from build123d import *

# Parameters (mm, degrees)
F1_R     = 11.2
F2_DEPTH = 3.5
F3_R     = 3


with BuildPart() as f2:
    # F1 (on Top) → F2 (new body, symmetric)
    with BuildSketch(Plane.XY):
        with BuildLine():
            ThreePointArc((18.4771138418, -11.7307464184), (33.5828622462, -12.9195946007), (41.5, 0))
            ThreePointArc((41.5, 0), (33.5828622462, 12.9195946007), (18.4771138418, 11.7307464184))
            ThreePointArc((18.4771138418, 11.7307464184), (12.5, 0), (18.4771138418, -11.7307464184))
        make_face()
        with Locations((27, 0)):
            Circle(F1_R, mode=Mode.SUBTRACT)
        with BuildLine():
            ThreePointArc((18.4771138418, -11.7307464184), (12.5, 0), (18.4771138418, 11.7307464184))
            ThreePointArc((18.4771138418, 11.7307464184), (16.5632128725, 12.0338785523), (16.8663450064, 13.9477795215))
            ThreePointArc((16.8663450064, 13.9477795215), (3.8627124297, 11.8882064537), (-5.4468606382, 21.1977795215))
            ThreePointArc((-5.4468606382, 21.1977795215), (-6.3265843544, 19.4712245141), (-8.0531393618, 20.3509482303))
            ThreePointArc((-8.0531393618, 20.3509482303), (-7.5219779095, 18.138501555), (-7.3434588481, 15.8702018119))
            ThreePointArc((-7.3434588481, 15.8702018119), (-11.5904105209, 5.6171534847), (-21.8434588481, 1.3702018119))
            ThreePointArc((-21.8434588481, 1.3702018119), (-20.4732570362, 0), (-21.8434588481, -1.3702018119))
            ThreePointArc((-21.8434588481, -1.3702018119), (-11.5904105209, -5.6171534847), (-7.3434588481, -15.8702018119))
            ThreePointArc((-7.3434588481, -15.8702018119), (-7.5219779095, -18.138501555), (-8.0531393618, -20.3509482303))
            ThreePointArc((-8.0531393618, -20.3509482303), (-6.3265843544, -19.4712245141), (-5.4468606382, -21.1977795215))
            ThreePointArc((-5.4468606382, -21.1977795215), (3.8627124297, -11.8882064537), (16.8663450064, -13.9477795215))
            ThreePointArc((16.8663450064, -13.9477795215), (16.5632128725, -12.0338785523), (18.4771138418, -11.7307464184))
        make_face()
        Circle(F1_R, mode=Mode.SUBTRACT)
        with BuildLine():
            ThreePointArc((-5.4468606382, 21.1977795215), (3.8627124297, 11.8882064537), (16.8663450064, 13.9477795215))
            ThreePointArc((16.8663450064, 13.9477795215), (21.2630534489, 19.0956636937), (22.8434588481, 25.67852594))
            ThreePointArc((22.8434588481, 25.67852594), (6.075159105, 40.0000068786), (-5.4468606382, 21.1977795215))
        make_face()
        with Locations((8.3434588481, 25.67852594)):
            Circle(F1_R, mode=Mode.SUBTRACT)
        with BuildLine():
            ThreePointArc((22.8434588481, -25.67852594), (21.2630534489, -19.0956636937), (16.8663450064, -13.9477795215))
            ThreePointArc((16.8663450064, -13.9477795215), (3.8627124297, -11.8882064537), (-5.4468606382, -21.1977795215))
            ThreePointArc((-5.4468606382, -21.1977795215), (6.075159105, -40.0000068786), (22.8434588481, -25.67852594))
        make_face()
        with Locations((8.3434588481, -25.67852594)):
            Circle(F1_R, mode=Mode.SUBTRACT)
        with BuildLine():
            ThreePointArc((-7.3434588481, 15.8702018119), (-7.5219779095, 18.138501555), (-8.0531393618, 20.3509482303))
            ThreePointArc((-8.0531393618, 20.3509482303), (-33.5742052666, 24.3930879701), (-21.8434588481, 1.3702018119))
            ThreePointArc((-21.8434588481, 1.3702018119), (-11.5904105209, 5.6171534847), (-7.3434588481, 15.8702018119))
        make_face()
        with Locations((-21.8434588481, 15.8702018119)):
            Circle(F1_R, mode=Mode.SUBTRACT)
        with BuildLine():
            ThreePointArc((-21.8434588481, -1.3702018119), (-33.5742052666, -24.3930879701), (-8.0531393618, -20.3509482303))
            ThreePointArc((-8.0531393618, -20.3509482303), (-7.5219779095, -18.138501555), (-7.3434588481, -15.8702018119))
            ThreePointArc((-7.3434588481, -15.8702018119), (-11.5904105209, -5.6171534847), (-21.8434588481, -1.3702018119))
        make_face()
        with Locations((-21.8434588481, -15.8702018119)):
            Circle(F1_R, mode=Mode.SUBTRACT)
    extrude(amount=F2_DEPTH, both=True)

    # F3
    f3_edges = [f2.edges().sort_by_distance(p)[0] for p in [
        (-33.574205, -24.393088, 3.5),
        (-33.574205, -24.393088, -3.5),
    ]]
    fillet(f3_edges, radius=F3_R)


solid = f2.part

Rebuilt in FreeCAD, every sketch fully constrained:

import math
import FreeCAD as App
import Part
import Sketcher
from FreeCAD import Vector
Q = App.Units.Quantity


def edges_at(feature, points):
    """Names of the edges that pass closest to the given points."""
    edges = feature.Shape.Edges
    near = lambda p: min(range(len(edges)), key=lambda i: edges[i].distToShape(Part.Vertex(*p))[0])
    return sorted({f"Edge{near(p) + 1}" for p in points})

doc = App.newDocument("Part")
body = doc.addObject("PartDesign::Body", "Body")

# Sketch on XY plane
sketch1 = body.newObject("Sketcher::SketchObject", "Sketch")
sketch1.AttachmentSupport = (doc.getObject("XY_Plane"), [""])
sketch1.MapMode = "FlatFace"
sketch1.addGeometry(Part.ArcOfCircle(Part.Circle(Vector(27, 0, 0), Vector(0, 0, 1), 14.5), math.radians(-126), math.radians(0)), False)
sketch1.addGeometry(Part.ArcOfCircle(Part.Circle(Vector(27, 0, 0), Vector(0, 0, 1), 14.5), math.radians(0), math.radians(126)), False)
sketch1.addGeometry(Part.ArcOfCircle(Part.Circle(Vector(17.7, 12.8, 0), Vector(0, 0, 1), 1.4), math.radians(126), math.radians(306)), False)
sketch1.addGeometry(Part.ArcOfCircle(Part.Circle(Vector(8.3, 25.7, 0), Vector(0, 0, 1), 14.5), math.radians(-54), math.radians(0)), False)
sketch1.addGeometry(Part.ArcOfCircle(Part.Circle(Vector(8.3, 25.7, 0), Vector(0, 0, 1), 14.5), math.radians(0), math.radians(198)), False)
sketch1.addGeometry(Part.ArcOfCircle(Part.Circle(Vector(-6.8, 20.8, 0), Vector(0, 0, 1), 1.4), math.radians(-162), math.radians(18)), False)
sketch1.addGeometry(Part.ArcOfCircle(Part.Circle(Vector(-21.8, 15.9, 0), Vector(0, 0, 1), 14.5), math.radians(18), math.radians(270)), False)
sketch1.addGeometry(Part.ArcOfCircle(Part.Circle(Vector(-21.8, 0, 0), Vector(0, 0, 1), 1.4), math.radians(-90), math.radians(90)), False)
sketch1.addGeometry(Part.ArcOfCircle(Part.Circle(Vector(-21.8, -15.9, 0), Vector(0, 0, 1), 14.5), math.radians(90), math.radians(342)), False)
sketch1.addGeometry(Part.ArcOfCircle(Part.Circle(Vector(-6.8, -20.8, 0), Vector(0, 0, 1), 1.4), math.radians(-18), math.radians(162)), False)
sketch1.addGeometry(Part.ArcOfCircle(Part.Circle(Vector(8.3, -25.7, 0), Vector(0, 0, 1), 14.5), math.radians(162), math.radians(360)), False)
sketch1.addGeometry(Part.ArcOfCircle(Part.Circle(Vector(8.3, -25.7, 0), Vector(0, 0, 1), 14.5), math.radians(0), math.radians(54)), False)
sketch1.addGeometry(Part.ArcOfCircle(Part.Circle(Vector(17.7, -12.8, 0), Vector(0, 0, 1), 1.4), math.radians(54), math.radians(234)), False)
sketch1.addGeometry(Part.Circle(Vector(-21.8, -15.9, 0), Vector(0, 0, 1), 11.2), False)
sketch1.addGeometry(Part.Circle(Vector(8.3, -25.7, 0), Vector(0, 0, 1), 11.2), False)
sketch1.addGeometry(Part.Circle(Vector(-21.8, 15.9, 0), Vector(0, 0, 1), 11.2), False)
sketch1.addGeometry(Part.Circle(Vector(0, 0, 0), Vector(0, 0, 1), 11.2), False)
sketch1.addGeometry(Part.Circle(Vector(27, 0, 0), Vector(0, 0, 1), 11.2), False)
sketch1.addGeometry(Part.Circle(Vector(8.3, 25.7, 0), Vector(0, 0, 1), 11.2), False)
sketch1.addConstraint(Sketcher.Constraint("Tangent", 0, 2, 1, 1))
sketch1.addConstraint(Sketcher.Constraint("Tangent", 1, 2, 2, 2))
sketch1.addConstraint(Sketcher.Constraint("Tangent", 2, 1, 3, 1))
sketch1.addConstraint(Sketcher.Constraint("Tangent", 3, 2, 4, 1))
sketch1.addConstraint(Sketcher.Constraint("Tangent", 4, 2, 5, 2))
sketch1.addConstraint(Sketcher.Constraint("Tangent", 5, 1, 6, 1))
sketch1.addConstraint(Sketcher.Constraint("Tangent", 6, 2, 7, 2))
sketch1.addConstraint(Sketcher.Constraint("Tangent", 7, 1, 8, 1))
sketch1.addConstraint(Sketcher.Constraint("Tangent", 8, 2, 9, 2))
sketch1.addConstraint(Sketcher.Constraint("Tangent", 9, 1, 10, 1))
sketch1.addConstraint(Sketcher.Constraint("Tangent", 10, 2, 11, 1))
sketch1.addConstraint(Sketcher.Constraint("Tangent", 11, 2, 12, 2))
sketch1.addConstraint(Sketcher.Constraint("Tangent", 12, 1, 0, 1))
sketch1.addConstraint(Sketcher.Constraint("Coincident", 16, 3, -1, 1))
sketch1.addConstraint(Sketcher.Constraint("Coincident", 13, 3, 8, 3))
sketch1.addConstraint(Sketcher.Constraint("Coincident", 14, 3, 10, 3))
sketch1.addConstraint(Sketcher.Constraint("Coincident", 15, 3, 6, 3))
sketch1.addConstraint(Sketcher.Constraint("Coincident", 17, 3, 0, 3))
sketch1.addConstraint(Sketcher.Constraint("Coincident", 18, 3, 3, 3))
sketch1.addConstraint(Sketcher.Constraint("Equal", 0, 1))
sketch1.addConstraint(Sketcher.Constraint("Equal", 1, 3))
sketch1.addConstraint(Sketcher.Constraint("Equal", 3, 4))
sketch1.addConstraint(Sketcher.Constraint("Equal", 2, 5))
sketch1.addConstraint(Sketcher.Constraint("Equal", 4, 6))
sketch1.addConstraint(Sketcher.Constraint("Equal", 5, 7))
sketch1.addConstraint(Sketcher.Constraint("Equal", 6, 8))
sketch1.addConstraint(Sketcher.Constraint("Equal", 7, 9))
sketch1.addConstraint(Sketcher.Constraint("Equal", 8, 10))
sketch1.addConstraint(Sketcher.Constraint("Equal", 10, 11))
sketch1.addConstraint(Sketcher.Constraint("Equal", 9, 12))
sketch1.addConstraint(Sketcher.Constraint("Equal", 13, 14))
sketch1.addConstraint(Sketcher.Constraint("Equal", 14, 15))
sketch1.addConstraint(Sketcher.Constraint("Equal", 15, 16))
sketch1.addConstraint(Sketcher.Constraint("Equal", 16, 17))
sketch1.addConstraint(Sketcher.Constraint("Equal", 17, 18))
sketch1.addConstraint(Sketcher.Constraint("Symmetric", 6, 3, 8, 3, -1))
sketch1.addConstraint(Sketcher.Constraint("Symmetric", 2, 3, 12, 3, -1))
sketch1.addConstraint(Sketcher.Constraint("PointOnObject", 0, 2, -1))
sketch1.addConstraint(Sketcher.Constraint("Horizontal", 18, 3, 3, 2))
sketch1.addConstraint(Sketcher.Constraint("Horizontal", 14, 3, 10, 2))
sketch1.addConstraint(Sketcher.Constraint("Vertical", 6, 3, 7, 3))
sketch1.addConstraint(Sketcher.Constraint("Vertical", 5, 3, 9, 3))
sketch1.addConstraint(Sketcher.Constraint("Diameter", 13, Q("22.4 mm")))
sketch1.addConstraint(Sketcher.Constraint("Radius", 0, Q("14.5 mm")))
sketch1.addConstraint(Sketcher.Constraint("DistanceX", -1, 1, 0, 3, Q("27 mm")))
sketch1.addConstraint(Sketcher.Constraint("Radius", 2, Q("1.370202 mm")))
sketch1.addConstraint(Sketcher.Constraint("DistanceX", 5, 3, -1, 1, Q("6.75 mm")))
sketch1.addConstraint(Sketcher.Constraint("DistanceY", 2, 3, 5, 3, Q("7.935101 mm")))
sketch1.addConstraint(Sketcher.Constraint("DistanceX", 6, 3, 4, 2, Q("16.396598 mm")))
pad1 = body.newObject("PartDesign::Pad", "Pad")
pad1.Profile = sketch1
pad1.Length = 7
pad1.Midplane = True
doc.recompute()

fillet = body.newObject("PartDesign::Fillet", "Fillet")
fillet.Base = (pad1, edges_at(pad1, [(-33.574, -24.393, 3.5), (-33.574, -24.393, -3.5)]))
fillet.Radius = 3

doc.recompute()
